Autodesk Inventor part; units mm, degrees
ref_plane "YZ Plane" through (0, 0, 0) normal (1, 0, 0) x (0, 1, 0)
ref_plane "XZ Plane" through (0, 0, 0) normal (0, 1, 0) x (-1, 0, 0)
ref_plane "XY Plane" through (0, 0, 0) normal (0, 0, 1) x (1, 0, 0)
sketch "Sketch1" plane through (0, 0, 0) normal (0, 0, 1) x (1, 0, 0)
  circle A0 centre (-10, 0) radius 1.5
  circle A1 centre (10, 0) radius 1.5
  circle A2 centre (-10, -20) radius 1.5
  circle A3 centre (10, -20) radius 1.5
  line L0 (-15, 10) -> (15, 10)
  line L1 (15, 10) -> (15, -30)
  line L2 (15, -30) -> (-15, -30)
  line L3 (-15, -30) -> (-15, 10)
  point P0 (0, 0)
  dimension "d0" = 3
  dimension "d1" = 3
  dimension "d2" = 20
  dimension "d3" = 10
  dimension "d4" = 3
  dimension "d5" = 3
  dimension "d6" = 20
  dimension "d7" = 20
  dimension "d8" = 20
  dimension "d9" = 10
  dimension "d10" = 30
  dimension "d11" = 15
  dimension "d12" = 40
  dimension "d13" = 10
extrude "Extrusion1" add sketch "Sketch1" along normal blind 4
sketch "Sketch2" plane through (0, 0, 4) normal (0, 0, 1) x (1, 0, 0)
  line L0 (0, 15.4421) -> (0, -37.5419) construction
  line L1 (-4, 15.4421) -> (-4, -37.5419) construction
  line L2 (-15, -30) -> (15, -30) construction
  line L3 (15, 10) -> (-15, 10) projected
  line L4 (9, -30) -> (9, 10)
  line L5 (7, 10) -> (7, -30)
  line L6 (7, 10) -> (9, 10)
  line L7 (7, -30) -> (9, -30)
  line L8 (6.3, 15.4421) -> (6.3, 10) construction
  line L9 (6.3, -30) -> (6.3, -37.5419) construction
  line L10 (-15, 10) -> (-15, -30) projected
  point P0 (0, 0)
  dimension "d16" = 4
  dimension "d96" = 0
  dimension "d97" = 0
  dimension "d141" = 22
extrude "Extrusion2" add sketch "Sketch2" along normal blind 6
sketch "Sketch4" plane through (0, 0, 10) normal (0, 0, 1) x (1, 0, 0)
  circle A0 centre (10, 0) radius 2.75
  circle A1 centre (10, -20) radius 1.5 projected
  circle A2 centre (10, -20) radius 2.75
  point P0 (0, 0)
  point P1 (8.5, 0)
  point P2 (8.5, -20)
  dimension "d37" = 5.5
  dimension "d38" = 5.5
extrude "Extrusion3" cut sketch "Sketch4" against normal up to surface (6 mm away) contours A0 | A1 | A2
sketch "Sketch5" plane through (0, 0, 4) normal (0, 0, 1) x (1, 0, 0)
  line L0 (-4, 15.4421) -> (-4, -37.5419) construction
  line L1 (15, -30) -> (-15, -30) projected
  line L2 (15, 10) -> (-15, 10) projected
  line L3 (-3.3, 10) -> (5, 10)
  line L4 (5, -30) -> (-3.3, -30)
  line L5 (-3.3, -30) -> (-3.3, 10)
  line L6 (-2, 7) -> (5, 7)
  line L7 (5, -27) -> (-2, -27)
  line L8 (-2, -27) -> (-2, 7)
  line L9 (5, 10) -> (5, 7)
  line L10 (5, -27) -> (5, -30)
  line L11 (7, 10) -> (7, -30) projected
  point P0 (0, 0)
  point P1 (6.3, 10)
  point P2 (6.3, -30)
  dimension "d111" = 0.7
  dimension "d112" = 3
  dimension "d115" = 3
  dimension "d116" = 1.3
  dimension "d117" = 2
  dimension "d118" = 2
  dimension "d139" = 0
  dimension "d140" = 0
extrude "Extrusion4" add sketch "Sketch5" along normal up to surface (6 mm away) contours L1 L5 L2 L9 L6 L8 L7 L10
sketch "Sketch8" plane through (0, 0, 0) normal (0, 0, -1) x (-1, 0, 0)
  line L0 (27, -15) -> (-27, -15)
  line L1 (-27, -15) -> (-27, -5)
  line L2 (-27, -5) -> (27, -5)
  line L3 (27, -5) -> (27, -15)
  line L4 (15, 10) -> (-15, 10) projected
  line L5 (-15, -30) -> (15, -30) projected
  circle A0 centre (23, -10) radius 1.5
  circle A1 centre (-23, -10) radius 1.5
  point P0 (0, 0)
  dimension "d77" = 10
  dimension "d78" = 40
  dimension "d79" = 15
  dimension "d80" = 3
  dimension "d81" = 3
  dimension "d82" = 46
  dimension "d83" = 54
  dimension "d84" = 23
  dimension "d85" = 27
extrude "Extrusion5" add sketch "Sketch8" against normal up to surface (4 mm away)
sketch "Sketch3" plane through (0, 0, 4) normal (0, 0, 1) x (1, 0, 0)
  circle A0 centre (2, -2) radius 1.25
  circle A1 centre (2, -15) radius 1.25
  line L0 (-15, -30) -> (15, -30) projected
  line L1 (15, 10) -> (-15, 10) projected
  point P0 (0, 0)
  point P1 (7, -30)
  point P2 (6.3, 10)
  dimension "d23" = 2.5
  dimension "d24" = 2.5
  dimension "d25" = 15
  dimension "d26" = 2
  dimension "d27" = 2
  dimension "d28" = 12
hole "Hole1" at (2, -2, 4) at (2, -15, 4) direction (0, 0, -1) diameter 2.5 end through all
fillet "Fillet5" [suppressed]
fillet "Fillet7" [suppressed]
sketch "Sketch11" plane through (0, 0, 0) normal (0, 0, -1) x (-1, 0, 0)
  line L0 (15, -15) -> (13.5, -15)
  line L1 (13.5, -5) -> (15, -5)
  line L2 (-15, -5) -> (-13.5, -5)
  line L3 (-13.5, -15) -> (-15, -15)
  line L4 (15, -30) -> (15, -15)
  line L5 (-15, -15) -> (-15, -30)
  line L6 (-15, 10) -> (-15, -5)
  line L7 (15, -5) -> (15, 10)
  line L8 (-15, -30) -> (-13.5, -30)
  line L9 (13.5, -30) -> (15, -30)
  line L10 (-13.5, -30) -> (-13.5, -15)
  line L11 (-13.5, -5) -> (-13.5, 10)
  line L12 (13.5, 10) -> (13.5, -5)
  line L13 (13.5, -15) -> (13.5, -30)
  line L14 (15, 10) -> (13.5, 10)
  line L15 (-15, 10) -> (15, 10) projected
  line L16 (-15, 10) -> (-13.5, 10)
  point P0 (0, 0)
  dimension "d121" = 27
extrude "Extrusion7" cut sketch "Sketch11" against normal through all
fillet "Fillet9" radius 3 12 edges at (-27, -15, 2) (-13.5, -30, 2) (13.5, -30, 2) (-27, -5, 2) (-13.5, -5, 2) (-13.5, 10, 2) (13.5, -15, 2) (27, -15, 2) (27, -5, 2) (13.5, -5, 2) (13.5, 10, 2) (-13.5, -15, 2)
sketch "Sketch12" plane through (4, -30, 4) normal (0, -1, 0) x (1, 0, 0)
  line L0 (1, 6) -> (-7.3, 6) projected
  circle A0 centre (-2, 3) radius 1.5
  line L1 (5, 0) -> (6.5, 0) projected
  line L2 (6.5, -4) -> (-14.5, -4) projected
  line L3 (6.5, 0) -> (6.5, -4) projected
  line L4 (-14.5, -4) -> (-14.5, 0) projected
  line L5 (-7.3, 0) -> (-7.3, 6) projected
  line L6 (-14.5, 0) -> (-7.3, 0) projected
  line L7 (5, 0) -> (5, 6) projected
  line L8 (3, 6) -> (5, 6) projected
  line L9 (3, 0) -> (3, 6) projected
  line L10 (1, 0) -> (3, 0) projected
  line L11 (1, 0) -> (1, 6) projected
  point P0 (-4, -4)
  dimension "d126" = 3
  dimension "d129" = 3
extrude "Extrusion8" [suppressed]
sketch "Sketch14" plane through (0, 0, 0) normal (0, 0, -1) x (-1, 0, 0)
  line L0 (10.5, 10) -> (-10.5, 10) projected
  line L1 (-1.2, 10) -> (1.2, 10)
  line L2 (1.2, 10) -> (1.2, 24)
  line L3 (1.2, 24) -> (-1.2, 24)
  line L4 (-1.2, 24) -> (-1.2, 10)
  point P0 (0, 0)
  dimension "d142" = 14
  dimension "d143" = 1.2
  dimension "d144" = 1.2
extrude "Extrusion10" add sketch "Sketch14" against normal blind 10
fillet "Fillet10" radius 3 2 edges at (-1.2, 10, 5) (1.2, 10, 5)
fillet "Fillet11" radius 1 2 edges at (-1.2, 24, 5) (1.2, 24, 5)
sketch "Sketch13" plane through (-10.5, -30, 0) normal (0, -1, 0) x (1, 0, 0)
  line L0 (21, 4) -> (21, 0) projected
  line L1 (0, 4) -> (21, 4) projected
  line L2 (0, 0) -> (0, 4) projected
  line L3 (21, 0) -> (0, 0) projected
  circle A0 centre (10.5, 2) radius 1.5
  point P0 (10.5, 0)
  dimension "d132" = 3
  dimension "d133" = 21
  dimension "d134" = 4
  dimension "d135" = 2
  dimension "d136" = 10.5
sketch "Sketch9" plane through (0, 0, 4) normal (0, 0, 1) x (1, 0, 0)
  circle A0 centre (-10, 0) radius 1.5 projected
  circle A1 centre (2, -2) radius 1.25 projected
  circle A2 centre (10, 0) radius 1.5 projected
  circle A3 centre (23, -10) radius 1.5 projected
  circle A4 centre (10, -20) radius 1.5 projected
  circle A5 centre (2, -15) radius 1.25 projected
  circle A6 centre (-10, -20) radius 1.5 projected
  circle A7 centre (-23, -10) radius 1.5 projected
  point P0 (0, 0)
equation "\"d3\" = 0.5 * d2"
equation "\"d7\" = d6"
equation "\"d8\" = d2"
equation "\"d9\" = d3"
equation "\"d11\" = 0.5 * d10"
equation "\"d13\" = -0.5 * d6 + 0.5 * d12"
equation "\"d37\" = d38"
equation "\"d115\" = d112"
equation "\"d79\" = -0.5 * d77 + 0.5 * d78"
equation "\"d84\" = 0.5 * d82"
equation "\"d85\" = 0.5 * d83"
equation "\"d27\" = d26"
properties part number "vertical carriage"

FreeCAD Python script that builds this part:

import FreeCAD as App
import Part
import Sketcher
from FreeCAD import Vector


def edges_at(feature, points):
    """Names of the edges that pass closest to the given points."""
    edges = feature.Shape.Edges
    near = lambda p: min(range(len(edges)), key=lambda i: edges[i].distToShape(Part.Vertex(*p))[0])
    return sorted({f"Edge{near(p) + 1}" for p in points})

doc = App.newDocument("Part")
body = doc.addObject("PartDesign::Body", "Body")

sketch1 = body.newObject("Sketcher::SketchObject", "Sketch")
sketch1.AttachmentSupport = (doc.getObject("XY_Plane"), [""])
sketch1.MapMode = "FlatFace"
sketch1.addGeometry([
    Part.LineSegment(Vector(15, 10, 0), Vector(-15, 10, 0)),
    Part.LineSegment(Vector(-15, 10, 0), Vector(-15, -30, 0)),
    Part.LineSegment(Vector(-15, -30, 0), Vector(15, -30, 0)),
    Part.LineSegment(Vector(15, -30, 0), Vector(15, 10, 0)),
    Part.Circle(Vector(-10, -20, 0), Vector(0, 0, 1), 1.5),
    Part.Circle(Vector(10, -20, 0), Vector(0, 0, 1), 1.5),
    Part.Circle(Vector(-10, 0, 0), Vector(0, 0, 1), 1.5),
    Part.Circle(Vector(10, 0, 0), Vector(0, 0, 1), 1.5),
], False)
sketch1.addConstraint([
    Sketcher.Constraint("Coincident", 0, 2, 1, 1),
    Sketcher.Constraint("Coincident", 1, 2, 2, 1),
    Sketcher.Constraint("Coincident", 2, 2, 3, 1),
    Sketcher.Constraint("Coincident", 3, 2, 0, 1),
    Sketcher.Constraint("Horizontal", 0),
    Sketcher.Constraint("Vertical", 1),
    Sketcher.Constraint("Horizontal", 2),
    Sketcher.Constraint("Vertical", 3),
    Sketcher.Constraint("Equal", 4, 5),
    Sketcher.Constraint("Equal", 5, 6),
    Sketcher.Constraint("Equal", 6, 7),
    Sketcher.Constraint("Symmetric", 6, 3, 7, 3, -1, 1),
    Sketcher.Constraint("Symmetric", 4, 3, 5, 3, -2),
    Sketcher.Constraint("PointOnObject", 6, 3, -1),
    Sketcher.Constraint("Vertical", 4, 3, 6, 3),
    Sketcher.Constraint("Diameter", 4, 3.0),
    Sketcher.Constraint("DistanceX", 0, 2, 0, 1, 30.0),
    Sketcher.Constraint("DistanceY", 1, 2, 1, 1, 40.0),
    Sketcher.Constraint("DistanceX", 4, 3, -1, 1, 10.0),
    Sketcher.Constraint("DistanceY", 4, 3, -1, 1, 20.0),
    Sketcher.Constraint("DistanceX", 0, 2, -1, 1, 15.0),
    Sketcher.Constraint("DistanceY", -1, 1, 0, 2, 10.0),
])
pad1 = body.newObject("PartDesign::Pad", "Pad")
pad1.Profile = sketch1
pad1.Length = 4

sketch2 = body.newObject("Sketcher::SketchObject", "Sketch001")
sketch2.AttachmentSupport = (doc.getObject("XY_Plane"), [""])
sketch2.MapMode = "FlatFace"
sketch2.AttachmentOffset = App.Placement(Vector(0, 0, 4), App.Rotation())
sketch2.addGeometry([
    Part.LineSegment(Vector(9, -30, 0), Vector(9, 10, 0)),
    Part.LineSegment(Vector(9, 10, 0), Vector(7, 10, 0)),
    Part.LineSegment(Vector(7, 10, 0), Vector(7, -30, 0)),
    Part.LineSegment(Vector(7, -30, 0), Vector(9, -30, 0)),
], False)
sketch2.addConstraint([
    Sketcher.Constraint("Coincident", 0, 2, 1, 1),
    Sketcher.Constraint("Coincident", 1, 2, 2, 1),
    Sketcher.Constraint("Coincident", 2, 2, 3, 1),
    Sketcher.Constraint("Coincident", 3, 2, 0, 1),
    Sketcher.Constraint("Vertical", 0),
    Sketcher.Constraint("Horizontal", 1),
    Sketcher.Constraint("Vertical", 2),
    Sketcher.Constraint("Horizontal", 3),
    Sketcher.Constraint("DistanceX", 1, 2, 1, 1, 2.0),
    Sketcher.Constraint("DistanceY", 0, 1, 0, 2, 40.0),
    Sketcher.Constraint("DistanceX", -1, 1, 0, 2, 9.0),
    Sketcher.Constraint("DistanceY", -1, 1, 0, 2, 10.0),
])
pad2 = body.newObject("PartDesign::Pad", "Pad001")
pad2.Profile = sketch2
pad2.Length = 6

sketch3 = body.newObject("Sketcher::SketchObject", "Sketch002")
sketch3.AttachmentSupport = (doc.getObject("XY_Plane"), [""])
sketch3.MapMode = "FlatFace"
sketch3.AttachmentOffset = App.Placement(Vector(0, 0, 10), App.Rotation())
sketch3.addGeometry([
    Part.Circle(Vector(10, 0, 0), Vector(0, 0, 1), 2.8),
    Part.Circle(Vector(10, -20, 0), Vector(0, 0, 1), 2.8),
], False)
sketch3.addConstraint([
    Sketcher.Constraint("Equal", 0, 1),
    Sketcher.Constraint("PointOnObject", 0, 3, -1),
    Sketcher.Constraint("Vertical", 0, 3, 1, 3),
    Sketcher.Constraint("Diameter", 0, 5.5),
    Sketcher.Constraint("DistanceX", -1, 1, 0, 3, 10.0),
    Sketcher.Constraint("DistanceY", 1, 3, -1, 1, 20.0),
])
pocket1 = body.newObject("PartDesign::Pocket", "Pocket")
pocket1.Profile = sketch3
pocket1.Length = 6

sketch4 = body.newObject("Sketcher::SketchObject", "Sketch003")
sketch4.AttachmentSupport = (doc.getObject("XY_Plane"), [""])
sketch4.MapMode = "FlatFace"
sketch4.AttachmentOffset = App.Placement(Vector(0, 0, 4), App.Rotation())
sketch4.addGeometry([
    Part.LineSegment(Vector(-3.3, -30, 0), Vector(5, -30, 0)),
    Part.LineSegment(Vector(5, -30, 0), Vector(5, -27, 0)),
    Part.LineSegment(Vector(5, -27, 0), Vector(-2, -27, 0)),
    Part.LineSegment(Vector(-2, -27, 0), Vector(-2, 7, 0)),
    Part.LineSegment(Vector(-2, 7, 0), Vector(5, 7, 0)),
    Part.LineSegment(Vector(5, 7, 0), Vector(5, 10, 0)),
    Part.LineSegment(Vector(5, 10, 0), Vector(-3.3, 10, 0)),
    Part.LineSegment(Vector(-3.3, 10, 0), Vector(-3.3, -30, 0)),
], False)
sketch4.addConstraint([
    Sketcher.Constraint("Coincident", 0, 2, 1, 1),
    Sketcher.Constraint("Coincident", 1, 2, 2, 1),
    Sketcher.Constraint("Coincident", 2, 2, 3, 1),
    Sketcher.Constraint("Coincident", 3, 2, 4, 1),
    Sketcher.Constraint("Coincident", 4, 2, 5, 1),
    Sketcher.Constraint("Coincident", 5, 2, 6, 1),
    Sketcher.Constraint("Coincident", 6, 2, 7, 1),
    Sketcher.Constraint("Coincident", 7, 2, 0, 1),
    Sketcher.Constraint("Horizontal", 0),
    Sketcher.Constraint("Vertical", 1),
    Sketcher.Constraint("Horizontal", 2),
    Sketcher.Constraint("Vertical", 3),
    Sketcher.Constraint("Horizontal", 4),
    Sketcher.Constraint("Vertical", 5),
    Sketcher.Constraint("Horizontal", 6),
    Sketcher.Constraint("Vertical", 7),
    Sketcher.Constraint("Vertical", 1, 2, 4, 2),
    Sketcher.Constraint("Equal", 1, 5),
    Sketcher.Constraint("DistanceY", 1, 1, 1, 2, 3.0),
    Sketcher.Constraint("DistanceX", 2, 2, -1, 1, 2.0),
    Sketcher.Constraint("DistanceX", 6, 2, 3, 2, 1.3),
    Sketcher.Constraint("DistanceX", 2, 2, 2, 1, 7.0),
    Sketcher.Constraint("DistanceY", 3, 1, 3, 2, 34.0),
    Sketcher.Constraint("DistanceY", 0, 2, -1, 1, 30.0),
])
pad3 = body.newObject("PartDesign::Pad", "Pad002")
pad3.Profile = sketch4
pad3.Length = 6

sketch5 = body.newObject("Sketcher::SketchObject", "Sketch004")
sketch5.AttachmentSupport = (doc.getObject("XY_Plane"), [""])
sketch5.MapMode = "FlatFace"
sketch5.addGeometry([
    Part.LineSegment(Vector(27, -15, 0), Vector(-27, -15, 0)),
    Part.LineSegment(Vector(-27, -15, 0), Vector(-27, -5, 0)),
    Part.LineSegment(Vector(-27, -5, 0), Vector(27, -5, 0)),
    Part.LineSegment(Vector(27, -5, 0), Vector(27, -15, 0)),
    Part.Circle(Vector(23, -10, 0), Vector(0, 0, 1), 1.5),
    Part.Circle(Vector(-23, -10, 0), Vector(0, 0, 1), 1.5),
], False)
sketch5.addConstraint([
    Sketcher.Constraint("Coincident", 0, 2, 1, 1),
    Sketcher.Constraint("Coincident", 1, 2, 2, 1),
    Sketcher.Constraint("Coincident", 2, 2, 3, 1),
    Sketcher.Constraint("Coincident", 3, 2, 0, 1),
    Sketcher.Constraint("Horizontal", 0),
    Sketcher.Constraint("Vertical", 1),
    Sketcher.Constraint("Horizontal", 2),
    Sketcher.Constraint("Vertical", 3),
    Sketcher.Constraint("Equal", 4, 5),
    Sketcher.Constraint("Symmetric", 4, 3, 5, 3, -2),
    Sketcher.Constraint("Diameter", 4, 3.0),
    Sketcher.Constraint("DistanceX", 0, 2, 0, 1, 54.0),
    Sketcher.Constraint("DistanceY", 1, 1, 1, 2, 10.0),
    Sketcher.Constraint("DistanceX", -1, 1, 4, 3, 23.0),
    Sketcher.Constraint("DistanceY", 4, 3, -1, 1, 10.0),
    Sketcher.Constraint("DistanceX", 0, 2, -1, 1, 27.0),
    Sketcher.Constraint("DistanceY", 0, 2, -1, 1, 15.0),
])
pad4 = body.newObject("PartDesign::Pad", "Pad003")
pad4.Profile = sketch5
pad4.Length = 4

sketch6 = body.newObject("Sketcher::SketchObject", "Sketch005")
sketch6.AttachmentSupport = (doc.getObject("XY_Plane"), [""])
sketch6.MapMode = "FlatFace"
sketch6.AttachmentOffset = App.Placement(Vector(0, 0, 4), App.Rotation())
sketch6.addGeometry([
    Part.Circle(Vector(2, -2, 0), Vector(0, 0, 1), 1.2),
    Part.Circle(Vector(2, -15, 0), Vector(0, 0, 1), 1.2),
], False)
sketch6.addConstraint([
    Sketcher.Constraint("Equal", 0, 1),
    Sketcher.Constraint("Vertical", 0, 3, 1, 3),
    Sketcher.Constraint("Diameter", 0, 2.5),
    Sketcher.Constraint("DistanceX", -1, 1, 0, 3, 2.0),
    Sketcher.Constraint("DistanceY", 0, 3, -1, 1, 2.0),
    Sketcher.Constraint("DistanceY", 1, 3, -1, 1, 15.0),
])
doc.recompute()
hole = body.newObject("PartDesign::Hole", "Hole")
hole.Profile = sketch6
hole.ThreadType = "None"
hole.Diameter = 2.5
hole.DepthType = "ThroughAll"

sketch7 = body.newObject("Sketcher::SketchObject", "Sketch006")
sketch7.AttachmentSupport = (doc.getObject("XY_Plane"), [""])
sketch7.MapMode = "FlatFace"
sketch7.addGeometry([
    Part.LineSegment(Vector(-15, -30, 0), Vector(-15, -15, 0)),
    Part.LineSegment(Vector(-15, -15, 0), Vector(-13.5, -15, 0)),
    Part.LineSegment(Vector(-13.5, -15, 0), Vector(-13.5, -30, 0)),
    Part.LineSegment(Vector(-13.5, -30, 0), Vector(-15, -30, 0)),
    Part.LineSegment(Vector(-13.5, 10, 0), Vector(-13.5, -5, 0)),
    Part.LineSegment(Vector(-13.5, -5, 0), Vector(-15, -5, 0)),
    Part.LineSegment(Vector(-15, -5, 0), Vector(-15, 10, 0)),
    Part.LineSegment(Vector(-15, 10, 0), Vector(-13.5, 10, 0)),
    Part.LineSegment(Vector(13.5, -5, 0), Vector(13.5, 10, 0)),
    Part.LineSegment(Vector(13.5, 10, 0), Vector(15, 10, 0)),
    Part.LineSegment(Vector(15, 10, 0), Vector(15, -5, 0)),
    Part.LineSegment(Vector(15, -5, 0), Vector(13.5, -5, 0)),
    Part.LineSegment(Vector(13.5, -30, 0), Vector(13.5, -15, 0)),
    Part.LineSegment(Vector(13.5, -15, 0), Vector(15, -15, 0)),
    Part.LineSegment(Vector(15, -15, 0), Vector(15, -30, 0)),
    Part.LineSegment(Vector(15, -30, 0), Vector(13.5, -30, 0)),
], False)
sketch7.addConstraint([
    Sketcher.Constraint("Coincident", 0, 2, 1, 1),
    Sketcher.Constraint("Coincident", 1, 2, 2, 1),
    Sketcher.Constraint("Coincident", 2, 2, 3, 1),
    Sketcher.Constraint("Coincident", 3, 2, 0, 1),
    Sketcher.Constraint("Coincident", 4, 2, 5, 1),
    Sketcher.Constraint("Coincident", 5, 2, 6, 1),
    Sketcher.Constraint("Coincident", 6, 2, 7, 1),
    Sketcher.Constraint("Coincident", 7, 2, 4, 1),
    Sketcher.Constraint("Coincident", 8, 2, 9, 1),
    Sketcher.Constraint("Coincident", 9, 2, 10, 1),
    Sketcher.Constraint("Coincident", 10, 2, 11, 1),
    Sketcher.Constraint("Coincident", 11, 2, 8, 1),
    Sketcher.Constraint("Coincident", 12, 2, 13, 1),
    Sketcher.Constraint("Coincident", 13, 2, 14, 1),
    Sketcher.Constraint("Coincident", 14, 2, 15, 1),
    Sketcher.Constraint("Coincident", 15, 2, 12, 1),
    Sketcher.Constraint("Vertical", 0),
    Sketcher.Constraint("Horizontal", 1),
    Sketcher.Constraint("Vertical", 2),
    Sketcher.Constraint("Horizontal", 3),
    Sketcher.Constraint("Vertical", 4),
    Sketcher.Constraint("Horizontal", 5),
    Sketcher.Constraint("Vertical", 6),
    Sketcher.Constraint("Horizontal", 7),
    Sketcher.Constraint("Vertical", 8),
    Sketcher.Constraint("Horizontal", 9),
    Sketcher.Constraint("Vertical", 10),
    Sketcher.Constraint("Horizontal", 11),
    Sketcher.Constraint("Vertical", 12),
    Sketcher.Constraint("Horizontal", 13),
    Sketcher.Constraint("Vertical", 14),
    Sketcher.Constraint("Horizontal", 15),
    Sketcher.Constraint("Symmetric", 7, 2, 8, 2, -2),
    Sketcher.Constraint("Symmetric", 5, 2, 10, 2, -2),
    Sketcher.Constraint("Symmetric", 1, 2, 12, 2, -2),
    Sketcher.Constraint("Symmetric", 3, 2, 14, 2, -2),
    Sketcher.Constraint("Vertical", 2, 2, 4, 2),
    Sketcher.Constraint("Vertical", 3, 2, 5, 2),
    Sketcher.Constraint("Equal", 2, 4),
    Sketcher.Constraint("DistanceX", 7, 2, 8, 2, 27.0),
    Sketcher.Constraint("DistanceY", 0, 1, 0, 2, 15.0),
    Sketcher.Constraint("DistanceX", 1, 1, 1, 2, 1.5),
    Sketcher.Constraint("DistanceY", 0, 2, -1, 1, 15.0),
    Sketcher.Constraint("DistanceY", 4, 2, -1, 1, 5.0),
])
pocket2 = body.newObject("PartDesign::Pocket", "Pocket001")
pocket2.Profile = sketch7
pocket2.Type = "ThroughAll"
pocket2.Reversed = True
doc.recompute()

fillet = body.newObject("PartDesign::Fillet", "Fillet")
fillet.Base = (pocket2, edges_at(pocket2, [
    (-27, -15, 2),
    (-13.5, -30, 2),
    (13.5, -30, 2),
    (-27, -5, 2),
    (-13.5, -5, 2),
    (-13.5, 10, 2),
    (13.5, -15, 2),
    (27, -15, 2),
    (27, -5, 2),
    (13.5, -5, 2),
    (13.5, 10, 2),
    (-13.5, -15, 2),
]))
fillet.Radius = 3

sketch8 = body.newObject("Sketcher::SketchObject", "Sketch007")
sketch8.AttachmentSupport = (doc.getObject("XY_Plane"), [""])
sketch8.MapMode = "FlatFace"
sketch8.addGeometry([
    Part.LineSegment(Vector(1.2, 10, 0), Vector(-1.2, 10, 0)),
    Part.LineSegment(Vector(-1.2, 10, 0), Vector(-1.2, 24, 0)),
    Part.LineSegment(Vector(-1.2, 24, 0), Vector(1.2, 24, 0)),
    Part.LineSegment(Vector(1.2, 24, 0), Vector(1.2, 10, 0)),
], False)
sketch8.addConstraint([
    Sketcher.Constraint("Coincident", 0, 2, 1, 1),
    Sketcher.Constraint("Coincident", 1, 2, 2, 1),
    Sketcher.Constraint("Coincident", 2, 2, 3, 1),
    Sketcher.Constraint("Coincident", 3, 2, 0, 1),
    Sketcher.Constraint("Horizontal", 0),
    Sketcher.Constraint("Vertical", 1),
    Sketcher.Constraint("Horizontal", 2),
    Sketcher.Constraint("Vertical", 3),
    Sketcher.Constraint("DistanceY", 1, 1, 1, 2, 14.0),
    Sketcher.Constraint("DistanceX", 0, 2, -1, 1, 1.2),
    Sketcher.Constraint("DistanceX", -1, 1, 2, 2, 1.2),
    Sketcher.Constraint("DistanceY", -1, 1, 0, 2, 10.0),
])
pad5 = body.newObject("PartDesign::Pad", "Pad004")
pad5.Profile = sketch8
pad5.Length = 10
doc.recompute()

fillet2 = body.newObject("PartDesign::Fillet", "Fillet001")
fillet2.Base = (pad5, edges_at(pad5, [(-1.2, 10, 5), (1.2, 10, 5)]))
fillet2.Radius = 3
doc.recompute()

fillet3 = body.newObject("PartDesign::Fillet", "Fillet002")
fillet3.Base = (fillet2, edges_at(fillet2, [(-1.2, 24, 5), (1.2, 24, 5)]))
fillet3.Radius = 1

doc.recompute()
